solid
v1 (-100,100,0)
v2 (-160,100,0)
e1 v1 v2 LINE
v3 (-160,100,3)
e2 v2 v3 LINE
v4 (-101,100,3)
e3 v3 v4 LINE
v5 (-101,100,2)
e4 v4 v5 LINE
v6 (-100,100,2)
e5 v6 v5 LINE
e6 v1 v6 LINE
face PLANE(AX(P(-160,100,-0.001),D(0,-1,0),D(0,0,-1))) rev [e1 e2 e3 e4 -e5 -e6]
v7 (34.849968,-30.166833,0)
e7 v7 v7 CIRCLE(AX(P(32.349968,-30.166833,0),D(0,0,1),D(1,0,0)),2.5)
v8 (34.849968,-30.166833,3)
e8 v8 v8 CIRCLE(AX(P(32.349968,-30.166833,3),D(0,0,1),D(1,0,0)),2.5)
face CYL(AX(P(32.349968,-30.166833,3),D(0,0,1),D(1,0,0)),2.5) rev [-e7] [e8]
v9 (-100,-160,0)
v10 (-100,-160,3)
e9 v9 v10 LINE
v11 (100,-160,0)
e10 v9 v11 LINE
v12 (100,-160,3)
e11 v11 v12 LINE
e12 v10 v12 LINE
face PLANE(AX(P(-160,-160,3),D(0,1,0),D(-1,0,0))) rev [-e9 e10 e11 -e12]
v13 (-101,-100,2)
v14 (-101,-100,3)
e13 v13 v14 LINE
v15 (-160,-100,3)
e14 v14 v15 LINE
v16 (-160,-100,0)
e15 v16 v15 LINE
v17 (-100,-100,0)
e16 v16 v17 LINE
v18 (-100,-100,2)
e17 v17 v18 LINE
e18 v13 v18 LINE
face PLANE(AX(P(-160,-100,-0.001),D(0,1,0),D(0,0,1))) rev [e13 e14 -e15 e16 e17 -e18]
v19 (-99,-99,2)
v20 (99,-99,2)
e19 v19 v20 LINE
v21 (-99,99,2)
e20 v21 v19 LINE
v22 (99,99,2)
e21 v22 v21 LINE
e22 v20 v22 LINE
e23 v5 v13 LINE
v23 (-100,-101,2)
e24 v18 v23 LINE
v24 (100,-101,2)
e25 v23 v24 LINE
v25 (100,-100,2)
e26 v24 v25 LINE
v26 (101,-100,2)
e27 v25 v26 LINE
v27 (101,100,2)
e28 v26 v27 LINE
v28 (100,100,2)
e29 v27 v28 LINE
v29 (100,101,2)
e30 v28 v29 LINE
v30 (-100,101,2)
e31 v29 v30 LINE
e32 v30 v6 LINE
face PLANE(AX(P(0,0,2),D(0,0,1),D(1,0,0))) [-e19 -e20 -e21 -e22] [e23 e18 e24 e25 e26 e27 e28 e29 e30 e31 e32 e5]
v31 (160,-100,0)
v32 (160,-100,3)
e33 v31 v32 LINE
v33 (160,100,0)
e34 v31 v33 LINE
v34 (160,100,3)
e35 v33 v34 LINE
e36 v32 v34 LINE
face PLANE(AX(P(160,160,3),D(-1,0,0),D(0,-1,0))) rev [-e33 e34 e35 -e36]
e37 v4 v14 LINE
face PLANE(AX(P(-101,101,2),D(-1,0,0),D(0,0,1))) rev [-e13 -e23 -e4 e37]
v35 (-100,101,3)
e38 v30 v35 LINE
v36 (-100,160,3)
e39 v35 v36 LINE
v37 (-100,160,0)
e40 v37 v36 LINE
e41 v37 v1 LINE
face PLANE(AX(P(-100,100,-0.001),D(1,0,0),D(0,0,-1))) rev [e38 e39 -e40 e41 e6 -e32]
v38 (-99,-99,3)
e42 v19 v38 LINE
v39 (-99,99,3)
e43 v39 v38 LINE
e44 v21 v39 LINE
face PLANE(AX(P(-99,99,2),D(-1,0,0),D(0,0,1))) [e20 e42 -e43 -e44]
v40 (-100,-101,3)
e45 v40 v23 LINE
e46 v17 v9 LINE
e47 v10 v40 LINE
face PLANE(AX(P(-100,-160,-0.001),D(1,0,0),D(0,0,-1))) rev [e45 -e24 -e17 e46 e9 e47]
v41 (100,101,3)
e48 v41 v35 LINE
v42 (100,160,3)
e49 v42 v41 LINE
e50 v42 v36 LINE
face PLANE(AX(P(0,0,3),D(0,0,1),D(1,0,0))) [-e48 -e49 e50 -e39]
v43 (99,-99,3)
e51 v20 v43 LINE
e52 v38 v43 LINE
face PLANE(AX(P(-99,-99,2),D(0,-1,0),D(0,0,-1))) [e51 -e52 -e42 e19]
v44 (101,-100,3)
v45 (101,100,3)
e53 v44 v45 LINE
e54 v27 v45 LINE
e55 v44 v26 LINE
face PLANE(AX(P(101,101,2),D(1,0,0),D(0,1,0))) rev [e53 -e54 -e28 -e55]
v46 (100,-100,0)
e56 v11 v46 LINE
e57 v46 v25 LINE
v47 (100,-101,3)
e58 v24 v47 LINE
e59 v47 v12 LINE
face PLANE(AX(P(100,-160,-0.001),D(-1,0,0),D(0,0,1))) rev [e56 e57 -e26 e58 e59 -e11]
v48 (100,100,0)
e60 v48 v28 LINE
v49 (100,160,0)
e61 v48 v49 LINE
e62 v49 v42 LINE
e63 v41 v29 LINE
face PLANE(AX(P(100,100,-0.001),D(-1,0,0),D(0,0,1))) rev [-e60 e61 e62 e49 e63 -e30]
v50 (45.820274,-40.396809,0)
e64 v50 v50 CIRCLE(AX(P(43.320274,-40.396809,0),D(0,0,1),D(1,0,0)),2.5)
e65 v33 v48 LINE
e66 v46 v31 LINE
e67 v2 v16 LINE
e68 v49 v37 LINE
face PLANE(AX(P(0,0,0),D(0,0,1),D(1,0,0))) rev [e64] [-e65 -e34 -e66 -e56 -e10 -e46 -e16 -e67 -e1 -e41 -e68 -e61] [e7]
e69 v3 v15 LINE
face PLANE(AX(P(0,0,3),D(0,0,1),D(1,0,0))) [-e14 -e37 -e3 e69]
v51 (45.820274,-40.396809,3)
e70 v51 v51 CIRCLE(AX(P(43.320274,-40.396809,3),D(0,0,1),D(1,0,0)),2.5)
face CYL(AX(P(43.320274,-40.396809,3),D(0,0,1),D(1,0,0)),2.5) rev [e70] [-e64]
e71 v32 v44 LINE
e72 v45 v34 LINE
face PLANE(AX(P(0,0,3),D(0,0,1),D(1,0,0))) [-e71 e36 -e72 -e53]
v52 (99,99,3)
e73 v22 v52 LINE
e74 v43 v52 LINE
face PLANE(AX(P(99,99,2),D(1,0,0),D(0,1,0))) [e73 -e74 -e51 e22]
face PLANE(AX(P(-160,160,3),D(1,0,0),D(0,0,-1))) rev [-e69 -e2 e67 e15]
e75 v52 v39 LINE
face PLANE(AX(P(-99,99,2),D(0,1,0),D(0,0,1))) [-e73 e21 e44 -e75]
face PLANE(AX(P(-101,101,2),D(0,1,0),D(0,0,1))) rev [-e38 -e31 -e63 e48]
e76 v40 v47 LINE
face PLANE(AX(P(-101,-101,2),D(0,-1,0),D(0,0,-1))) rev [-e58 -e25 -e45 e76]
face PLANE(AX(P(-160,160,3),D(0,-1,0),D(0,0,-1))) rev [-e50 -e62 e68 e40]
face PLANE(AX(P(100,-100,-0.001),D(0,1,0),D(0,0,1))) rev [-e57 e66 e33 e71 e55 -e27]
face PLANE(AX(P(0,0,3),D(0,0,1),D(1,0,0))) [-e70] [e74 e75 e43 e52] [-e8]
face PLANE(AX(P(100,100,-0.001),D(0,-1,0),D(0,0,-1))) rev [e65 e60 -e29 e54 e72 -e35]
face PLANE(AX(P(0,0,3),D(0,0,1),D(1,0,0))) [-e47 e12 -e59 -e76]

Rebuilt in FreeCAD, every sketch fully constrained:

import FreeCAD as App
import Part
import Sketcher

doc = App.newDocument("Part")
body = doc.addObject("PartDesign::Body", "Body")

# Sketch on XY plane
sketch1 = body.newObject("Sketcher::SketchObject", "Sketch")
sketch1.AttachmentSupport = (doc.getObject("XY_Plane"), [""])
sketch1.MapMode = "FlatFace"
sketch1.addGeometry([
    Part.LineSegment(App.Vector(-160, 160, 0), App.Vector(-160, -160, 0)),
    Part.LineSegment(App.Vector(-160, -160, 0), App.Vector(160, -160, 0)),
    Part.LineSegment(App.Vector(160, -160, 0), App.Vector(160, 160, 0)),
    Part.LineSegment(App.Vector(160, 160, 0), App.Vector(-160, 160, 0)),
], False)
sketch1.addConstraint([
    Sketcher.Constraint("Coincident", 0, 2, 1, 1),
    Sketcher.Constraint("Coincident", 1, 2, 2, 1),
    Sketcher.Constraint("Coincident", 2, 2, 3, 1),
    Sketcher.Constraint("Coincident", 3, 2, 0, 1),
    Sketcher.Constraint("Vertical", 0),
    Sketcher.Constraint("Horizontal", 1),
    Sketcher.Constraint("Vertical", 2),
    Sketcher.Constraint("Horizontal", 3),
    Sketcher.Constraint("Symmetric", 0, 2, 2, 2, -1, 1),
    Sketcher.Constraint("Equal", 3, 0),
    Sketcher.Constraint("DistanceX", 1, 1, 1, 2, 320.0),
])
pad1 = body.newObject("PartDesign::Pad", "Pad")
pad1.Profile = sketch1
pad1.Length = 3

# Sketch on XY plane
sketch2 = body.newObject("Sketcher::SketchObject", "Sketch001")
sketch2.AttachmentSupport = (doc.getObject("XY_Plane"), [""])
sketch2.MapMode = "FlatFace"
sketch2.AttachmentOffset = App.Placement(App.Vector(0, 0, 3), App.Rotation())
sketch2.addGeometry([
    Part.LineSegment(App.Vector(100, -100, 0), App.Vector(100, -160, 0)),
    Part.LineSegment(App.Vector(100, -160, 0), App.Vector(160, -160, 0)),
    Part.LineSegment(App.Vector(160, -160, 0), App.Vector(160, -100, 0)),
    Part.LineSegment(App.Vector(160, -100, 0), App.Vector(100, -100, 0)),
], False)
sketch2.addConstraint([
    Sketcher.Constraint("Coincident", 0, 2, 1, 1),
    Sketcher.Constraint("Coincident", 1, 2, 2, 1),
    Sketcher.Constraint("Coincident", 2, 2, 3, 1),
    Sketcher.Constraint("Coincident", 3, 2, 0, 1),
    Sketcher.Constraint("Vertical", 0),
    Sketcher.Constraint("Horizontal", 1),
    Sketcher.Constraint("Vertical", 2),
    Sketcher.Constraint("Horizontal", 3),
    Sketcher.Constraint("Equal", 3, 0),
    Sketcher.Constraint("DistanceX", 1, 1, 1, 2, 60.0),
    Sketcher.Constraint("DistanceX", -1, 1, 0, 2, 100.0),
    Sketcher.Constraint("DistanceY", 0, 2, -1, 1, 160.0),
])
pocket1 = body.newObject("PartDesign::Pocket", "Pocket")
pocket1.Profile = sketch2
pocket1.Type = "UpToFirst"

# Sketch on XY plane
sketch3 = body.newObject("Sketcher::SketchObject", "Sketch002")
sketch3.AttachmentSupport = (doc.getObject("XY_Plane"), [""])
sketch3.MapMode = "FlatFace"
sketch3.AttachmentOffset = App.Placement(App.Vector(0, 0, 3), App.Rotation())
sketch3.addGeometry([
    Part.LineSegment(App.Vector(-160, -100, 0), App.Vector(-160, -160, 0)),
    Part.LineSegment(App.Vector(-160, -160, 0), App.Vector(-100, -160, 0)),
    Part.LineSegment(App.Vector(-100, -160, 0), App.Vector(-100, -100, 0)),
    Part.LineSegment(App.Vector(-100, -100, 0), App.Vector(-160, -100, 0)),
], False)
sketch3.addConstraint([
    Sketcher.Constraint("Coincident", 0, 2, 1, 1),
    Sketcher.Constraint("Coincident", 1, 2, 2, 1),
    Sketcher.Constraint("Coincident", 2, 2, 3, 1),
    Sketcher.Constraint("Coincident", 3, 2, 0, 1),
    Sketcher.Constraint("Vertical", 0),
    Sketcher.Constraint("Horizontal", 1),
    Sketcher.Constraint("Vertical", 2),
    Sketcher.Constraint("Horizontal", 3),
    Sketcher.Constraint("Equal", 3, 0),
    Sketcher.Constraint("DistanceX", 1, 1, 1, 2, 60.0),
    Sketcher.Constraint("DistanceX", 0, 2, -1, 1, 160.0),
    Sketcher.Constraint("DistanceY", 0, 2, -1, 1, 160.0),
])
pocket2 = body.newObject("PartDesign::Pocket", "Pocket001")
pocket2.Profile = sketch3
pocket2.Type = "UpToFirst"

# Sketch on XY plane
sketch4 = body.newObject("Sketcher::SketchObject", "Sketch003")
sketch4.AttachmentSupport = (doc.getObject("XY_Plane"), [""])
sketch4.MapMode = "FlatFace"
sketch4.AttachmentOffset = App.Placement(App.Vector(0, 0, 3), App.Rotation())
sketch4.addGeometry([
    Part.LineSegment(App.Vector(100, 160, 0), App.Vector(100, 100, 0)),
    Part.LineSegment(App.Vector(100, 100, 0), App.Vector(160, 100, 0)),
    Part.LineSegment(App.Vector(160, 100, 0), App.Vector(160, 160, 0)),
    Part.LineSegment(App.Vector(160, 160, 0), App.Vector(100, 160, 0)),
], False)
sketch4.addConstraint([
    Sketcher.Constraint("Coincident", 0, 2, 1, 1),
    Sketcher.Constraint("Coincident", 1, 2, 2, 1),
    Sketcher.Constraint("Coincident", 2, 2, 3, 1),
    Sketcher.Constraint("Coincident", 3, 2, 0, 1),
    Sketcher.Constraint("Vertical", 0),
    Sketcher.Constraint("Horizontal", 1),
    Sketcher.Constraint("Vertical", 2),
    Sketcher.Constraint("Horizontal", 3),
    Sketcher.Constraint("Equal", 3, 0),
    Sketcher.Constraint("DistanceX", 1, 1, 1, 2, 60.0),
    Sketcher.Constraint("DistanceX", -1, 1, 0, 2, 100.0),
    Sketcher.Constraint("DistanceY", -1, 1, 0, 2, 100.0),
])
pocket3 = body.newObject("PartDesign::Pocket", "Pocket002")
pocket3.Profile = sketch4
pocket3.Type = "UpToFirst"

# Sketch on XY plane
sketch5 = body.newObject("Sketcher::SketchObject", "Sketch004")
sketch5.AttachmentSupport = (doc.getObject("XY_Plane"), [""])
sketch5.MapMode = "FlatFace"
sketch5.AttachmentOffset = App.Placement(App.Vector(0, 0, 3), App.Rotation())
sketch5.addGeometry([
    Part.LineSegment(App.Vector(-160, 160, 0), App.Vector(-160, 100, 0)),
    Part.LineSegment(App.Vector(-160, 100, 0), App.Vector(-100, 100, 0)),
    Part.LineSegment(App.Vector(-100, 100, 0), App.Vector(-100, 160, 0)),
    Part.LineSegment(App.Vector(-100, 160, 0), App.Vector(-160, 160, 0)),
], False)
sketch5.addConstraint([
    Sketcher.Constraint("Coincident", 0, 2, 1, 1),
    Sketcher.Constraint("Coincident", 1, 2, 2, 1),
    Sketcher.Constraint("Coincident", 2, 2, 3, 1),
    Sketcher.Constraint("Coincident", 3, 2, 0, 1),
    Sketcher.Constraint("Vertical", 0),
    Sketcher.Constraint("Horizontal", 1),
    Sketcher.Constraint("Vertical", 2),
    Sketcher.Constraint("Horizontal", 3),
    Sketcher.Constraint("Equal", 3, 0),
    Sketcher.Constraint("DistanceX", 1, 1, 1, 2, 60.0),
    Sketcher.Constraint("DistanceX", 0, 2, -1, 1, 160.0),
    Sketcher.Constraint("DistanceY", -1, 1, 0, 2, 100.0),
])
pocket4 = body.newObject("PartDesign::Pocket", "Pocket003")
pocket4.Profile = sketch5
pocket4.Type = "UpToFirst"

# Sketch on XY plane
sketch6 = body.newObject("Sketcher::SketchObject", "Sketch005")
sketch6.AttachmentSupport = (doc.getObject("XY_Plane"), [""])
sketch6.MapMode = "FlatFace"
sketch6.AttachmentOffset = App.Placement(App.Vector(0, 0, 3), App.Rotation())
sketch6.addGeometry([
    Part.LineSegment(App.Vector(-101, 101, 0), App.Vector(-101, -101, 0)),  # 0
    Part.LineSegment(App.Vector(-101, -101, 0), App.Vector(101, -101, 0)),  # 1
    Part.LineSegment(App.Vector(101, -101, 0), App.Vector(101, 101, 0)),  # 2
    Part.LineSegment(App.Vector(101, 101, 0), App.Vector(-101, 101, 0)),  # 3
    Part.LineSegment(App.Vector(99, -99, 0), App.Vector(-99, -99, 0)),  # 4
    Part.LineSegment(App.Vector(-99, -99, 0), App.Vector(-99, 99, 0)),  # 5
    Part.LineSegment(App.Vector(-99, 99, 0), App.Vector(99, 99, 0)),  # 6
    Part.LineSegment(App.Vector(99, 99, 0), App.Vector(99, -99, 0)),  # 7
], False)
sketch6.addConstraint([
    Sketcher.Constraint("Coincident", 0, 2, 1, 1),
    Sketcher.Constraint("Coincident", 1, 2, 2, 1),
    Sketcher.Constraint("Coincident", 2, 2, 3, 1),
    Sketcher.Constraint("Coincident", 3, 2, 0, 1),
    Sketcher.Constraint("Coincident", 4, 2, 5, 1),
    Sketcher.Constraint("Coincident", 5, 2, 6, 1),
    Sketcher.Constraint("Coincident", 6, 2, 7, 1),
    Sketcher.Constraint("Coincident", 7, 2, 4, 1),
    Sketcher.Constraint("Vertical", 0),
    Sketcher.Constraint("Horizontal", 1),
    Sketcher.Constraint("Vertical", 2),
    Sketcher.Constraint("Horizontal", 3),
    Sketcher.Constraint("Horizontal", 4),
    Sketcher.Constraint("Vertical", 5),
    Sketcher.Constraint("Horizontal", 6),
    Sketcher.Constraint("Vertical", 7),
    Sketcher.Constraint("Symmetric", 0, 2, 2, 2, -1, 1),
    Sketcher.Constraint("Symmetric", 4, 2, 6, 2, -1, 1),
    Sketcher.Constraint("Equal", 3, 0),
    Sketcher.Constraint("Equal", 6, 5),
    Sketcher.Constraint("DistanceX", 1, 1, 1, 2, 202.0),
    Sketcher.Constraint("DistanceX", 4, 2, 4, 1, 198.0),
])
pocket5 = body.newObject("PartDesign::Pocket", "Pocket004")
pocket5.Profile = sketch6
pocket5.Length = 1

# Sketch on XY plane
sketch7 = body.newObject("Sketcher::SketchObject", "Sketch006")
sketch7.AttachmentSupport = (doc.getObject("XY_Plane"), [""])
sketch7.MapMode = "FlatFace"
sketch7.AttachmentOffset = App.Placement(App.Vector(0, 0, 3), App.Rotation())
sketch7.addGeometry([
    Part.Circle(App.Vector(32.349968, -30.166833, 0), App.Vector(0, 0, 1), 2.5),
    Part.Circle(App.Vector(43.320274, -40.396809, 0), App.Vector(0, 0, 1), 2.5),
], False)
sketch7.addConstraint([
    Sketcher.Constraint("Equal", 0, 1),
    Sketcher.Constraint("Diameter", 0, 5.0),
    Sketcher.Constraint("DistanceX", -1, 1, 0, 3, 32.349968),
    Sketcher.Constraint("DistanceY", 1, 3, -1, 1, 40.396809),
    Sketcher.Constraint("DistanceY", 0, 3, -1, 1, 30.166833),
    Sketcher.Constraint("DistanceX", -1, 1, 1, 3, 43.320274),
])
doc.recompute()
hole = body.newObject("PartDesign::Hole", "Hole")
hole.Profile = sketch7
hole.ThreadType = "None"
hole.Diameter = 5
hole.DepthType = "Dimension"
hole.Depth = 3
hole.DrillPoint = "Flat"

doc.recompute()
